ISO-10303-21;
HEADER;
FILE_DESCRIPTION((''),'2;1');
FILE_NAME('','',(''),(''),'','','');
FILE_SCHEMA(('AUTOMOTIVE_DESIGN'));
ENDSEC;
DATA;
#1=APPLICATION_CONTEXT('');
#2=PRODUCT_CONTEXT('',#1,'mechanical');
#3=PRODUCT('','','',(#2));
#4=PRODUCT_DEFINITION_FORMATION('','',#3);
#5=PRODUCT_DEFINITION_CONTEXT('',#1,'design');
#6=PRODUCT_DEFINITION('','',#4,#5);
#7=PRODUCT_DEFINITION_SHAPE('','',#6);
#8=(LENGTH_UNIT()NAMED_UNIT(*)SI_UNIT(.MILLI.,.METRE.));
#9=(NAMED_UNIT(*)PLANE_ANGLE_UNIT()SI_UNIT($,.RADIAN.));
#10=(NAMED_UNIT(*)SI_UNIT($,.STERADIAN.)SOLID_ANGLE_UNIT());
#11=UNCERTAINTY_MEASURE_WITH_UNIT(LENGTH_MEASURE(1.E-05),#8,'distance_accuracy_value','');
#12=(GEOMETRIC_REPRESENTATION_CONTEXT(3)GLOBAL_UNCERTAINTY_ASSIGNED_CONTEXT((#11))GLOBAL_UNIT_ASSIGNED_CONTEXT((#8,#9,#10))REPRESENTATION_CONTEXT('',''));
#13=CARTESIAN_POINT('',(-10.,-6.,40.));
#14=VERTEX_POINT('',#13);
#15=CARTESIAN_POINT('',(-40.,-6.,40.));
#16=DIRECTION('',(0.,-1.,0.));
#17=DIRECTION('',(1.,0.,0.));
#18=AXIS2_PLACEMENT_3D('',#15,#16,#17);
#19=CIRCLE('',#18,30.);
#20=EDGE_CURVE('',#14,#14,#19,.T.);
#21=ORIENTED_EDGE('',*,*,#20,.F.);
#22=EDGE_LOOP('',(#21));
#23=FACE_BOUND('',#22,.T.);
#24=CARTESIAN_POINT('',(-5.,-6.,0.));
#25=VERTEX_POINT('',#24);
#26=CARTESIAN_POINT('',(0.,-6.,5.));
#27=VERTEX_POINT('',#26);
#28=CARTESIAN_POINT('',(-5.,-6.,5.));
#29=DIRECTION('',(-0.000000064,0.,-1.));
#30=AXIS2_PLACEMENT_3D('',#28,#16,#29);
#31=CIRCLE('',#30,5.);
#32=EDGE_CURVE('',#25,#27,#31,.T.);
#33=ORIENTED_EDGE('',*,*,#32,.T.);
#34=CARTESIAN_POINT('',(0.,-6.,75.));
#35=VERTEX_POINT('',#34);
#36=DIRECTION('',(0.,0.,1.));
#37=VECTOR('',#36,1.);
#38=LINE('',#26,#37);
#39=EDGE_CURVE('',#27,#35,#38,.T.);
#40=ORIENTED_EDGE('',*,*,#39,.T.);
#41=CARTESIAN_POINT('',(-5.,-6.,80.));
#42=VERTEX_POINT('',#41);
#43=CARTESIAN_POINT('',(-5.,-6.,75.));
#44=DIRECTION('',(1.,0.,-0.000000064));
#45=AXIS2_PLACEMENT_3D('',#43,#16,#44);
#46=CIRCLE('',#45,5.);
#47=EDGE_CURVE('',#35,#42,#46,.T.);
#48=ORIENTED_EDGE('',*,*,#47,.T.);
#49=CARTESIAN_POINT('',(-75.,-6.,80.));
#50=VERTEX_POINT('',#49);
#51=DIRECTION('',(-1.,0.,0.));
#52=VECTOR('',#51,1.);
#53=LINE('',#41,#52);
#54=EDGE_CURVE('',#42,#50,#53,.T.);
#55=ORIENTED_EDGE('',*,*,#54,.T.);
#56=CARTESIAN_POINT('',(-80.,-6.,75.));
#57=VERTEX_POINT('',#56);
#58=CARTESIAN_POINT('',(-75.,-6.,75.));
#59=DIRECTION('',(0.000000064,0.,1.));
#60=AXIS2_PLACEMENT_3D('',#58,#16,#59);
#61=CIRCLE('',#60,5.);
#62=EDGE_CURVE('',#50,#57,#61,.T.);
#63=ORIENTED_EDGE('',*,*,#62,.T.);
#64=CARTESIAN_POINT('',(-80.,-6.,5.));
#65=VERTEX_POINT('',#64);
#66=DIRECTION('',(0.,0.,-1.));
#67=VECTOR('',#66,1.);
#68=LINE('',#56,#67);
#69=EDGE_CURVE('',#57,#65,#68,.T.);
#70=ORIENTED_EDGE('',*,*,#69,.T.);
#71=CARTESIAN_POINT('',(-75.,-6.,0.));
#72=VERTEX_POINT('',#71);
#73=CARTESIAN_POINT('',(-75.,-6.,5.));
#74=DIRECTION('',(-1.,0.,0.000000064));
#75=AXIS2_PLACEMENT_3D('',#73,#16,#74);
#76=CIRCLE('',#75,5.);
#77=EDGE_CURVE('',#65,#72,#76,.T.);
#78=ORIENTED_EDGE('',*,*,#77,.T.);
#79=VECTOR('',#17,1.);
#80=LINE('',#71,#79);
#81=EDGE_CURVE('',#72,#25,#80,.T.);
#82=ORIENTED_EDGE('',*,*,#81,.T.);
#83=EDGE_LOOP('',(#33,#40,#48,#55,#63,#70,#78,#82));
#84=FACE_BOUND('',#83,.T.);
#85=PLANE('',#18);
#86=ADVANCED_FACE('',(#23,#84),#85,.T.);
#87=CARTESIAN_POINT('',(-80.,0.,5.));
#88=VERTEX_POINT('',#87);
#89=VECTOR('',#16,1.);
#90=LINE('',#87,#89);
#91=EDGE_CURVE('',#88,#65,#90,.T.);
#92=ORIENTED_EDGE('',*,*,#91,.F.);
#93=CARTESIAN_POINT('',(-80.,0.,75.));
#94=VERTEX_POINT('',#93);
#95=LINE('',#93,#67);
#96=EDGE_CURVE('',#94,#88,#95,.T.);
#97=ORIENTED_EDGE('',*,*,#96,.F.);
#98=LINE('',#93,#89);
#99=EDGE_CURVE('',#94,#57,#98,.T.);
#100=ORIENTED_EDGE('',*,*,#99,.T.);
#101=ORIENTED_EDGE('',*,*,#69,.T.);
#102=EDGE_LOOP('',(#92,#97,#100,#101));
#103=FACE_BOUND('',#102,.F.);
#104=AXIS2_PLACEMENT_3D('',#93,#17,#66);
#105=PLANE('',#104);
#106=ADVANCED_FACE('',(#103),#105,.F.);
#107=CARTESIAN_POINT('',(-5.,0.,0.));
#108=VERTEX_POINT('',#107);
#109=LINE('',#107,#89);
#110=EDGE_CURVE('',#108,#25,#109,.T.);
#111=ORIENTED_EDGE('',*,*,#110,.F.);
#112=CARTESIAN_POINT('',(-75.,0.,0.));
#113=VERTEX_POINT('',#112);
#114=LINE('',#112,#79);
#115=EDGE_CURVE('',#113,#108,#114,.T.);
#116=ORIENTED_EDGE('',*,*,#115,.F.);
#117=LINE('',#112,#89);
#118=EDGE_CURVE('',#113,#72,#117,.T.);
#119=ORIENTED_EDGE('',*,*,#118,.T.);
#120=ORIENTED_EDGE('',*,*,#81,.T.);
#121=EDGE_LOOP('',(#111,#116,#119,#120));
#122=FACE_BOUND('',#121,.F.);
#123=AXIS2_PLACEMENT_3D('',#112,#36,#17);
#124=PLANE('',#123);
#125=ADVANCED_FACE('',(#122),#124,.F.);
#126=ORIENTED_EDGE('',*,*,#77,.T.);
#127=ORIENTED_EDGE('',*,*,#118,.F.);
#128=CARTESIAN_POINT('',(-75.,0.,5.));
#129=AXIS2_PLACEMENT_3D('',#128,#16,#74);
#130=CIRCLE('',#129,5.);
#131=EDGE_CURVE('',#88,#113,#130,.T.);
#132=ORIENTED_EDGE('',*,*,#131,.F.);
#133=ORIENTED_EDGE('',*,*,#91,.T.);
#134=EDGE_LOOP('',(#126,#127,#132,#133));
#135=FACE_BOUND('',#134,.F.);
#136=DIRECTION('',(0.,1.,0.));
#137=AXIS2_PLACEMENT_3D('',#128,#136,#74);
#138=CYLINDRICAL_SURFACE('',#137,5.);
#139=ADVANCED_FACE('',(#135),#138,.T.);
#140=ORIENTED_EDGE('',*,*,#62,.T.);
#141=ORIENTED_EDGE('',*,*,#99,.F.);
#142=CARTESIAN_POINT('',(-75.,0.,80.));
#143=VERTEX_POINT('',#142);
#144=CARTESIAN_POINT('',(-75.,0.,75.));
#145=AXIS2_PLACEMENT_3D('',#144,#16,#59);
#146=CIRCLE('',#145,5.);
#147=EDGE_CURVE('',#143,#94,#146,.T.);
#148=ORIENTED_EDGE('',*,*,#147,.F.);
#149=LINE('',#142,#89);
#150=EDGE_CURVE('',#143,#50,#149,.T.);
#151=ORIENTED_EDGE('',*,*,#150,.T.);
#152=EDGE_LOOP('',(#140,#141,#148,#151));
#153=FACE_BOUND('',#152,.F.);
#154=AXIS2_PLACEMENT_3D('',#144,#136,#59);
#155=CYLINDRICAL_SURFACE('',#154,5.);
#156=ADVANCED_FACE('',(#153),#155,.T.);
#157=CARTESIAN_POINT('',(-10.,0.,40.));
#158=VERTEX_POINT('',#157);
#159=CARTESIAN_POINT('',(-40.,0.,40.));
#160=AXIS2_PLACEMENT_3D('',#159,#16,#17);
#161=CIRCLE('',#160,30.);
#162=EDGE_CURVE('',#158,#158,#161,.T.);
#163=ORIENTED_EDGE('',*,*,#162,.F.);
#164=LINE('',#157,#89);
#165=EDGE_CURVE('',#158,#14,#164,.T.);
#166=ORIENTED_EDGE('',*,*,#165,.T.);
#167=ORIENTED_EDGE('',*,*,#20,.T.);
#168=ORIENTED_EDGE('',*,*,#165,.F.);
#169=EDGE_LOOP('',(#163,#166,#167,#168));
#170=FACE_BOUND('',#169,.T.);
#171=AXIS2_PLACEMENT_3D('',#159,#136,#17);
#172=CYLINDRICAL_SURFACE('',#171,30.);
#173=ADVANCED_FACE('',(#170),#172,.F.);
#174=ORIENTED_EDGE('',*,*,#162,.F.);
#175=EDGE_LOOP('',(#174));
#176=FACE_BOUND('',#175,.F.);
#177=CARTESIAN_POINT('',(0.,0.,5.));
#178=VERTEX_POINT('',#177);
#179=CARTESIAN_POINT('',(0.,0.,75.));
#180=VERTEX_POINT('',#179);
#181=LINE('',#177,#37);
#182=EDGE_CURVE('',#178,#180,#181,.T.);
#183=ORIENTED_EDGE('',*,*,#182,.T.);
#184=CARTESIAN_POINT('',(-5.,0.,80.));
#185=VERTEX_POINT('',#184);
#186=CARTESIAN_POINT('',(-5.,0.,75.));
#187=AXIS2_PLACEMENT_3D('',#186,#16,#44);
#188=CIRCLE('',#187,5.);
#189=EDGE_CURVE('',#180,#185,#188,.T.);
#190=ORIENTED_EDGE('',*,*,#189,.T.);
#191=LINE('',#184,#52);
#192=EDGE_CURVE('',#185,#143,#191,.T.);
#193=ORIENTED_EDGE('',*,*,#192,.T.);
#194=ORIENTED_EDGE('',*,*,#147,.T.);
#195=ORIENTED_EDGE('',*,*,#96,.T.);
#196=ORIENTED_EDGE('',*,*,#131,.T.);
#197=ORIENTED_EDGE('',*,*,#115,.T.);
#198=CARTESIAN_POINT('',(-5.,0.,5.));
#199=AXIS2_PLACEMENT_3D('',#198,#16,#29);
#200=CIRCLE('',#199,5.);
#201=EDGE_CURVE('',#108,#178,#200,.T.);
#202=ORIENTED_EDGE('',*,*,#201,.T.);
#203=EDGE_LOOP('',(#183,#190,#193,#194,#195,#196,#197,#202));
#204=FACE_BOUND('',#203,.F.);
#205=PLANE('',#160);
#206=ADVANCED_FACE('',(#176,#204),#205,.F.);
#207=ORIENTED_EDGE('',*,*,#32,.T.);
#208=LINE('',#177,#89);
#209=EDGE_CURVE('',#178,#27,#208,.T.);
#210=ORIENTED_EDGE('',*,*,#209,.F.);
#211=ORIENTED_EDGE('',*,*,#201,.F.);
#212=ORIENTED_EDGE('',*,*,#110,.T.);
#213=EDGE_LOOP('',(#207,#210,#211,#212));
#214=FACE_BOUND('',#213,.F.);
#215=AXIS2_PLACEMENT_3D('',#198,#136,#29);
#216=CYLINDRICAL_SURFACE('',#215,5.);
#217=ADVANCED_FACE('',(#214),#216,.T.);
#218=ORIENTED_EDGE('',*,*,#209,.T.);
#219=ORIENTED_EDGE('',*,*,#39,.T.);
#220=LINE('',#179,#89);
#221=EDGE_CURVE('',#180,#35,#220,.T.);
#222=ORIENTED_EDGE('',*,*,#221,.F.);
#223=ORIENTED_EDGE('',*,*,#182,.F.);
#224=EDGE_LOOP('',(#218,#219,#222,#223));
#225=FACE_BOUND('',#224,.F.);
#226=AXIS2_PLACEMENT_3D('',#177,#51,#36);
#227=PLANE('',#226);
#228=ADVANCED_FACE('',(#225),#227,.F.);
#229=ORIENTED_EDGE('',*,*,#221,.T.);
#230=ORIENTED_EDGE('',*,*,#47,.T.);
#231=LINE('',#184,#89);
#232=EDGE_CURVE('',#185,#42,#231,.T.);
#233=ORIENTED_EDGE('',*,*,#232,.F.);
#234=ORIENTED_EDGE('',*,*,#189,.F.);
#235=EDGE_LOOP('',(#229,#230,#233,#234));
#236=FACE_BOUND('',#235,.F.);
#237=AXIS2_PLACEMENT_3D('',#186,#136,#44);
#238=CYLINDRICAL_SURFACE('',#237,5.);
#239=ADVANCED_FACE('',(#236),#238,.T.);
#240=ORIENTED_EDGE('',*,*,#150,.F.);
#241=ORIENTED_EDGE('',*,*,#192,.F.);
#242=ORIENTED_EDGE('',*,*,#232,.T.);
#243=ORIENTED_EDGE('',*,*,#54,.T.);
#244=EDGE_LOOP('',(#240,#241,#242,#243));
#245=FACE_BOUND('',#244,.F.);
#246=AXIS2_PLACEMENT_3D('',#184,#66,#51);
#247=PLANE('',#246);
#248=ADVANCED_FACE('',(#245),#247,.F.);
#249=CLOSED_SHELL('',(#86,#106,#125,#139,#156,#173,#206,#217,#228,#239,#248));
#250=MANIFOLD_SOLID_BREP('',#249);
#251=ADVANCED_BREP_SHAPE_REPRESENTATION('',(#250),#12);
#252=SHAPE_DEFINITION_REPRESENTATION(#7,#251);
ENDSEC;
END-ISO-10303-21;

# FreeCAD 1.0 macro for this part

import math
import FreeCAD as App
import Part
import Sketcher
Q = App.Units.Quantity

doc = App.newDocument("Part")
body = doc.addObject("PartDesign::Body", "Body")

sketch1 = body.newObject("Sketcher::SketchObject", "Sketch")
sketch1.AttachmentSupport = (doc.getObject("XZ_Plane"), [""])
sketch1.MapMode = "FlatFace"
sketch1.addGeometry(Part.LineSegment(App.Vector(-75, 0, 0), App.Vector(-5, 0, 0)), False)
sketch1.addGeometry(Part.ArcOfCircle(Part.Circle(App.Vector(-5, 5, 0), App.Vector(0, 0, 1), 5), math.radians(-90), math.radians(0)), False)
sketch1.addGeometry(Part.LineSegment(App.Vector(0, 5, 0), App.Vector(0, 75, 0)), False)
sketch1.addGeometry(Part.ArcOfCircle(Part.Circle(App.Vector(-5, 75, 0), App.Vector(0, 0, 1), 5), math.radians(0), math.radians(90)), False)
sketch1.addGeometry(Part.LineSegment(App.Vector(-5, 80, 0), App.Vector(-75, 80, 0)), False)
sketch1.addGeometry(Part.ArcOfCircle(Part.Circle(App.Vector(-75, 75, 0), App.Vector(0, 0, 1), 5), math.radians(90), math.radians(180)), False)
sketch1.addGeometry(Part.LineSegment(App.Vector(-80, 75, 0), App.Vector(-80, 5, 0)), False)
sketch1.addGeometry(Part.ArcOfCircle(Part.Circle(App.Vector(-75, 5, 0), App.Vector(0, 0, 1), 5), math.radians(180), math.radians(270)), False)
sketch1.addGeometry(Part.Circle(App.Vector(-40, 40, 0), App.Vector(0, 0, 1), 30), False)
sketch1.addConstraint(Sketcher.Constraint("Tangent", 0, 2, 1, 1))
sketch1.addConstraint(Sketcher.Constraint("Tangent", 1, 2, 2, 1))
sketch1.addConstraint(Sketcher.Constraint("Tangent", 2, 2, 3, 1))
sketch1.addConstraint(Sketcher.Constraint("Tangent", 3, 2, 4, 1))
sketch1.addConstraint(Sketcher.Constraint("Tangent", 4, 2, 5, 1))
sketch1.addConstraint(Sketcher.Constraint("Tangent", 5, 2, 6, 1))
sketch1.addConstraint(Sketcher.Constraint("Tangent", 6, 2, 7, 1))
sketch1.addConstraint(Sketcher.Constraint("Tangent", 7, 2, 0, 1))
sketch1.addConstraint(Sketcher.Constraint("Horizontal", 0))
sketch1.addConstraint(Sketcher.Constraint("Vertical", 2))
sketch1.addConstraint(Sketcher.Constraint("Horizontal", 4))
sketch1.addConstraint(Sketcher.Constraint("Vertical", 6))
sketch1.addConstraint(Sketcher.Constraint("Equal", 1, 3))
sketch1.addConstraint(Sketcher.Constraint("Equal", 3, 5))
sketch1.addConstraint(Sketcher.Constraint("Equal", 5, 7))
sketch1.addConstraint(Sketcher.Constraint("PointOnObject", 0, 2, -1))
sketch1.addConstraint(Sketcher.Constraint("PointOnObject", 1, 2, -2))
sketch1.addConstraint(Sketcher.Constraint("Equal", 4, 2))
sketch1.addConstraint(Sketcher.Constraint("Diameter", 8, Q("60 mm")))
sketch1.addConstraint(Sketcher.Constraint("Radius", 1, Q("5 mm")))
sketch1.addConstraint(Sketcher.Constraint("DistanceX", 0, 1, 0, 2, Q("70 mm")))
sketch1.addConstraint(Sketcher.Constraint("DistanceX", 8, 3, -1, 1, Q("40 mm")))
sketch1.addConstraint(Sketcher.Constraint("DistanceY", -1, 1, 8, 3, Q("40 mm")))
pad1 = body.newObject("PartDesign::Pad", "Pad")
pad1.Profile = sketch1
pad1.Length = 6

doc.recompute()
